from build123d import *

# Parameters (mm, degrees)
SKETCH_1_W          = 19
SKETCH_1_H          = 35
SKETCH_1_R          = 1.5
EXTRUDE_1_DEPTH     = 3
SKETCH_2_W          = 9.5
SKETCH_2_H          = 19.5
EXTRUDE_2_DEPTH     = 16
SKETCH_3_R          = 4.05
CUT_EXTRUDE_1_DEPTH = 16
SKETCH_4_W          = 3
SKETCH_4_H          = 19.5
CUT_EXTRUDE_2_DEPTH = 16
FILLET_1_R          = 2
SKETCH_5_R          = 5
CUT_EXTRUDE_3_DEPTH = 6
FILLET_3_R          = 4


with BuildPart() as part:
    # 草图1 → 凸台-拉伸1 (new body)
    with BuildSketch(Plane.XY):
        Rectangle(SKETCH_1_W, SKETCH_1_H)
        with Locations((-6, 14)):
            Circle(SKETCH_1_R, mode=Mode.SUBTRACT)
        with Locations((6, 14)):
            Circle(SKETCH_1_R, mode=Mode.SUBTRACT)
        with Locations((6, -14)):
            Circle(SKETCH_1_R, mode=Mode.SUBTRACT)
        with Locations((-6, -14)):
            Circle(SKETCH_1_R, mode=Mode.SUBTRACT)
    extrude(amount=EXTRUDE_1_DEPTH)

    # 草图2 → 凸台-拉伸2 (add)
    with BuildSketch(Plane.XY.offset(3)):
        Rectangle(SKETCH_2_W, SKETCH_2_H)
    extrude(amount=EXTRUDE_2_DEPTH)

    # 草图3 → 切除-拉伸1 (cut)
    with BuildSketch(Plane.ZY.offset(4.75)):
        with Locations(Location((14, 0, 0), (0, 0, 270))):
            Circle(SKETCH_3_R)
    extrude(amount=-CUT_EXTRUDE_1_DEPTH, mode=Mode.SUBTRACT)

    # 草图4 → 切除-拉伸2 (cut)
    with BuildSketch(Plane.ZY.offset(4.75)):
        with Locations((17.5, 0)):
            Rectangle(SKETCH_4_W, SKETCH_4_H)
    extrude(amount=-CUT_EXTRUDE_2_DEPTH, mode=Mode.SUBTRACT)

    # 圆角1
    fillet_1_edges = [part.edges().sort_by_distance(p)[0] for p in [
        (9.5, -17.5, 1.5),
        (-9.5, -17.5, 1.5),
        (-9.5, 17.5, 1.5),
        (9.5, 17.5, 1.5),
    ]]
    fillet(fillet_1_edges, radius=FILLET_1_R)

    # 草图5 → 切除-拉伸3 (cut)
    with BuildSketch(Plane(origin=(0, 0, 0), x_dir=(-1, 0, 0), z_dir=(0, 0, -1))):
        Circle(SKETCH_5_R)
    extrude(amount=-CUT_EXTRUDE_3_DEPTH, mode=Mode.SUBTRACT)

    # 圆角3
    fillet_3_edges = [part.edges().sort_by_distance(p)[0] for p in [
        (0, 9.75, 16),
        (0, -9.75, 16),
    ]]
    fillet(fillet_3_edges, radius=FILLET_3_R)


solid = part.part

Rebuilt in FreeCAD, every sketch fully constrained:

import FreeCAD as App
import Part
import Sketcher


def edges_at(feature, points):
    """Names of the edges that pass closest to the given points."""
    edges = feature.Shape.Edges
    near = lambda p: min(range(len(edges)), key=lambda i: edges[i].distToShape(Part.Vertex(*p))[0])
    return sorted({f"Edge{near(p) + 1}" for p in points})


def add_polygon(sketch, points):
    """Adds a closed chain of lines whose ends are joined by coincident constraints."""
    first, n = sketch.GeometryCount, len(points)
    for a, b in zip(points, points[1:] + points[:1]):
        sketch.addGeometry(Part.LineSegment(App.Vector(*a, 0), App.Vector(*b, 0)), False)
    for i in range(n):
        sketch.addConstraint(Sketcher.Constraint("Coincident", first + i, 2, first + (i + 1) % n, 1))

doc = App.newDocument("Part")
body = doc.addObject("PartDesign::Body", "Body")

sketch1 = doc.addObject("Sketcher::SketchObject", "Sketch")
body.addObject(sketch1)
sketch1.AttachmentSupport = (doc.XY_Plane, [""])
sketch1.MapMode = "FlatFace"
add_polygon(sketch1, [(-9.5, 17.5), (-9.5, -17.5), (9.5, -17.5), (9.5, 17.5)])
sketch1.addGeometry(Part.Circle(App.Vector(-6, -14, 0), App.Vector(0, 0, 1), 1.5), False)
sketch1.addGeometry(Part.Circle(App.Vector(6, -14, 0), App.Vector(0, 0, 1), 1.5), False)
sketch1.addGeometry(Part.Circle(App.Vector(-6, 14, 0), App.Vector(0, 0, 1), 1.5), False)
sketch1.addGeometry(Part.Circle(App.Vector(6, 14, 0), App.Vector(0, 0, 1), 1.5), False)
sketch1.addConstraint(Sketcher.Constraint("Vertical", 0))
sketch1.addConstraint(Sketcher.Constraint("Horizontal", 1))
sketch1.addConstraint(Sketcher.Constraint("Vertical", 2))
sketch1.addConstraint(Sketcher.Constraint("Horizontal", 3))
sketch1.addConstraint(Sketcher.Constraint("Equal", 4, 5))
sketch1.addConstraint(Sketcher.Constraint("Equal", 5, 6))
sketch1.addConstraint(Sketcher.Constraint("Equal", 6, 7))
sketch1.addConstraint(Sketcher.Constraint("Symmetric", 5, 3, 6, 3, -1, 1))
sketch1.addConstraint(Sketcher.Constraint("Symmetric", 4, 3, 7, 3, -1, 1))
sketch1.addConstraint(Sketcher.Constraint("Symmetric", 0, 2, 2, 2, -1, 1))
sketch1.addConstraint(Sketcher.Constraint("Symmetric", 4, 3, 5, 3, -2))
sketch1.addConstraint(Sketcher.Constraint("Diameter", 4, 3.0))
sketch1.addConstraint(Sketcher.Constraint("DistanceX", 1, 1, 1, 2, 19.0))
sketch1.addConstraint(Sketcher.Constraint("DistanceY", 0, 2, 0, 1, 35.0))
sketch1.addConstraint(Sketcher.Constraint("DistanceX", 4, 3, -1, 1, 6.0))
sketch1.addConstraint(Sketcher.Constraint("DistanceY", 4, 3, -1, 1, 14.0))
pad1 = doc.addObject("PartDesign::Pad", "Pad")
body.addObject(pad1)
pad1.Profile = sketch1
pad1.Length = 3

sketch2 = doc.addObject("Sketcher::SketchObject", "Sketch001")
body.addObject(sketch2)
sketch2.AttachmentSupport = (doc.XY_Plane, [""])
sketch2.MapMode = "FlatFace"
sketch2.AttachmentOffset = App.Placement(App.Vector(0, 0, 3), App.Rotation())
add_polygon(sketch2, [(-5, 10), (-5, -10), (5, -10), (5, 10)])
sketch2.addConstraint(Sketcher.Constraint("Vertical", 0))
sketch2.addConstraint(Sketcher.Constraint("Horizontal", 1))
sketch2.addConstraint(Sketcher.Constraint("Vertical", 2))
sketch2.addConstraint(Sketcher.Constraint("Horizontal", 3))
sketch2.addConstraint(Sketcher.Constraint("Symmetric", 0, 2, 2, 2, -1, 1))
sketch2.addConstraint(Sketcher.Constraint("DistanceX", 1, 1, 1, 2, 9.5))
sketch2.addConstraint(Sketcher.Constraint("DistanceY", 0, 2, 0, 1, 19.5))
pad2 = doc.addObject("PartDesign::Pad", "Pad001")
body.addObject(pad2)
pad2.Profile = sketch2
pad2.Length = 16

sketch3 = doc.addObject("Sketcher::SketchObject", "Sketch002")
body.addObject(sketch3)
sketch3.AttachmentSupport = (doc.YZ_Plane, [""])
sketch3.MapMode = "FlatFace"
sketch3.AttachmentOffset = App.Placement(App.Vector(0, 0, -4.75), App.Rotation())
sketch3.addGeometry(Part.Circle(App.Vector(0, 14, 0), App.Vector(0, 0, 1), 4), False)
sketch3.addConstraint(Sketcher.Constraint("PointOnObject", 0, 3, -2))
sketch3.addConstraint(Sketcher.Constraint("Diameter", 0, 8.1))
sketch3.addConstraint(Sketcher.Constraint("DistanceY", -1, 1, 0, 3, 14.0))
pocket1 = doc.addObject("PartDesign::Pocket", "Pocket")
body.addObject(pocket1)
pocket1.Profile = sketch3
pocket1.Length = 16
pocket1.Reversed = True

sketch4 = doc.addObject("Sketcher::SketchObject", "Sketch003")
body.addObject(sketch4)
sketch4.AttachmentSupport = (doc.YZ_Plane, [""])
sketch4.MapMode = "FlatFace"
sketch4.AttachmentOffset = App.Placement(App.Vector(0, 0, -4.75), App.Rotation())
add_polygon(sketch4, [(9.8, 16), (-9.8, 16), (-9.8, 19), (9.8, 19)])
sketch4.addConstraint(Sketcher.Constraint("Horizontal", 0))
sketch4.addConstraint(Sketcher.Constraint("Vertical", 1))
sketch4.addConstraint(Sketcher.Constraint("Horizontal", 2))
sketch4.addConstraint(Sketcher.Constraint("Vertical", 3))
sketch4.addConstraint(Sketcher.Constraint("DistanceY", 1, 1, 1, 2, 3.0))
sketch4.addConstraint(Sketcher.Constraint("DistanceX", 0, 2, 0, 1, 19.5))
sketch4.addConstraint(Sketcher.Constraint("DistanceY", -1, 1, 0, 2, 16.0))
sketch4.addConstraint(Sketcher.Constraint("DistanceX", 0, 2, -1, 1, 9.75))
pocket2 = doc.addObject("PartDesign::Pocket", "Pocket001")
body.addObject(pocket2)
pocket2.Profile = sketch4
pocket2.Length = 16
pocket2.Reversed = True
doc.recompute()

fillet = doc.addObject("PartDesign::Fillet", "Fillet")
body.addObject(fillet)
fillet.Base = (pocket2, edges_at(pocket2, [
    (9.5, -17.5, 1.5),
    (-9.5, -17.5, 1.5),
    (-9.5, 17.5, 1.5),
    (9.5, 17.5, 1.5),
]))
fillet.Radius = 2

sketch5 = doc.addObject("Sketcher::SketchObject", "Sketch004")
body.addObject(sketch5)
sketch5.AttachmentSupport = (doc.XY_Plane, [""])
sketch5.MapMode = "FlatFace"
sketch5.addGeometry(Part.Circle(App.Vector(0, 0, 0), App.Vector(0, 0, 1), 5), False)
sketch5.addConstraint(Sketcher.Constraint("Coincident", 0, 3, -1, 1))
sketch5.addConstraint(Sketcher.Constraint("Diameter", 0, 10.0))
pocket3 = doc.addObject("PartDesign::Pocket", "Pocket002")
body.addObject(pocket3)
pocket3.Profile = sketch5
pocket3.Length = 6
pocket3.Reversed = True
doc.recompute()

fillet2 = doc.addObject("PartDesign::Fillet", "Fillet001")
body.addObject(fillet2)
fillet2.Base = (pocket3, edges_at(pocket3, [(0, 9.75, 16), (0, -9.75, 16)]))
fillet2.Radius = 4

doc.recompute()
